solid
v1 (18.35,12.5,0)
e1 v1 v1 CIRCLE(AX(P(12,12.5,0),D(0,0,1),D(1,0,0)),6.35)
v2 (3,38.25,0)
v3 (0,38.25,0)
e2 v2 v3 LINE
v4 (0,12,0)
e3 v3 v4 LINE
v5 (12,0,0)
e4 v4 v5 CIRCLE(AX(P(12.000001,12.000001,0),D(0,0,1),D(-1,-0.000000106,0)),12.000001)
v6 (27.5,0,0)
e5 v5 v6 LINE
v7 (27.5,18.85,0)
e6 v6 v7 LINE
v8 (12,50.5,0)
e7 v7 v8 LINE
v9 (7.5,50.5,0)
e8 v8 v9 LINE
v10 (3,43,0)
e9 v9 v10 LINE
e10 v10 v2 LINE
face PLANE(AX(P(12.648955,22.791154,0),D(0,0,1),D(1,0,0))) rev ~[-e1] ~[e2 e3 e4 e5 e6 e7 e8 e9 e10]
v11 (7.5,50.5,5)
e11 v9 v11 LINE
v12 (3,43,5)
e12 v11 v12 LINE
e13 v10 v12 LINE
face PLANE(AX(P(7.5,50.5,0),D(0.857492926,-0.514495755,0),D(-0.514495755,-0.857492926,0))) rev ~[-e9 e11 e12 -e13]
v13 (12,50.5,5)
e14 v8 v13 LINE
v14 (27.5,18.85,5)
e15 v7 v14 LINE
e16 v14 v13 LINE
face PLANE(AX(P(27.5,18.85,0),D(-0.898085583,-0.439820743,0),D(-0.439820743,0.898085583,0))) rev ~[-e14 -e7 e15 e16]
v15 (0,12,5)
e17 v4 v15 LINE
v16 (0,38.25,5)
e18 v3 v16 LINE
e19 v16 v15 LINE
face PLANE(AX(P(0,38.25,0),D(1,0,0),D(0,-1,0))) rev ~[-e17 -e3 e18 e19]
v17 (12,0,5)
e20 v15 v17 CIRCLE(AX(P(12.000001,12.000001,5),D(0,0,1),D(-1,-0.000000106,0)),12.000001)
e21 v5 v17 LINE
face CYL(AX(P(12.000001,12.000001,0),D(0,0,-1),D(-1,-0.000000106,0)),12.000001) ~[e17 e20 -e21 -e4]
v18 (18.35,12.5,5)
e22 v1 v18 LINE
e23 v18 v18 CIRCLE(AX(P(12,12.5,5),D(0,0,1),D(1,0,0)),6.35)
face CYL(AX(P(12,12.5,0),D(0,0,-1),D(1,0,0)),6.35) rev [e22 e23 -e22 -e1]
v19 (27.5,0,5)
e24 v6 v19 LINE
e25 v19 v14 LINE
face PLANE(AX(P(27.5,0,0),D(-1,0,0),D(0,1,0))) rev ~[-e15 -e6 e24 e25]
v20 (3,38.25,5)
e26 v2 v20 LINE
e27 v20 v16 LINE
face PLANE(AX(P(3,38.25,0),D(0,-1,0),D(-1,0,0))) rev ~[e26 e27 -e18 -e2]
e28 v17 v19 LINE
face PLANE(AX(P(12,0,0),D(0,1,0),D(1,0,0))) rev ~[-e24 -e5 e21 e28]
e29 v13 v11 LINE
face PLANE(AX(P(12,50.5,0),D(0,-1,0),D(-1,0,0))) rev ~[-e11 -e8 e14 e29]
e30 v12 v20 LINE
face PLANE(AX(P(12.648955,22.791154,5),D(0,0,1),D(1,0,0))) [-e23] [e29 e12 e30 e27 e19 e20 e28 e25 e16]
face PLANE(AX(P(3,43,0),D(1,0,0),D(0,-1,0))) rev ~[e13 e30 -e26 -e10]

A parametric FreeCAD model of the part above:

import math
import FreeCAD as App
import Part
import Sketcher

V = App.Vector

doc = App.newDocument("Part")
body = doc.addObject("PartDesign::Body", "Body")

# Sketch on XY plane
sketch1 = body.newObject("Sketcher::SketchObject", "Sketch")
sketch1.AttachmentSupport = (doc.getObject("XY_Plane"), [""])
sketch1.MapMode = "FlatFace"
sketch1.addGeometry(Part.ArcOfCircle(Part.Circle(V(12.000001, 12.000001, 0), V(0, 0, 1), 12.000001), math.radians(-179.999994), math.radians(-90.000006)), False)
sketch1.addGeometry(Part.LineSegment(V(12, 0, 0), V(27.5, 0, 0)), False)
sketch1.addGeometry(Part.LineSegment(V(27.5, 0, 0), V(27.5, 18.85, 0)), False)
sketch1.addGeometry(Part.LineSegment(V(27.5, 18.85, 0), V(12, 50.5, 0)), False)
sketch1.addGeometry(Part.LineSegment(V(12, 50.5, 0), V(7.5, 50.5, 0)), False)
sketch1.addGeometry(Part.LineSegment(V(7.5, 50.5, 0), V(3, 43, 0)), False)
sketch1.addGeometry(Part.LineSegment(V(3, 43, 0), V(3, 38.25, 0)), False)
sketch1.addGeometry(Part.LineSegment(V(3, 38.25, 0), V(0, 38.25, 0)), False)
sketch1.addGeometry(Part.LineSegment(V(0, 38.25, 0), V(0, 12, 0)), False)
sketch1.addGeometry(Part.Circle(V(12, 12.5, 0), V(0, 0, 1), 6.35), False)
sketch1.addConstraint(Sketcher.Constraint("Tangent", 0, 2, 1, 1))
sketch1.addConstraint(Sketcher.Constraint("Coincident", 1, 2, 2, 1))
sketch1.addConstraint(Sketcher.Constraint("Coincident", 2, 2, 3, 1))
sketch1.addConstraint(Sketcher.Constraint("Coincident", 3, 2, 4, 1))
sketch1.addConstraint(Sketcher.Constraint("Coincident", 4, 2, 5, 1))
sketch1.addConstraint(Sketcher.Constraint("Coincident", 5, 2, 6, 1))
sketch1.addConstraint(Sketcher.Constraint("Coincident", 6, 2, 7, 1))
sketch1.addConstraint(Sketcher.Constraint("Coincident", 7, 2, 8, 1))
sketch1.addConstraint(Sketcher.Constraint("Tangent", 8, 2, 0, 1))
sketch1.addConstraint(Sketcher.Constraint("Horizontal", 1))
sketch1.addConstraint(Sketcher.Constraint("Vertical", 2))
sketch1.addConstraint(Sketcher.Constraint("Horizontal", 4))
sketch1.addConstraint(Sketcher.Constraint("Vertical", 6))
sketch1.addConstraint(Sketcher.Constraint("Horizontal", 7))
sketch1.addConstraint(Sketcher.Constraint("Vertical", 8))
sketch1.addConstraint(Sketcher.Constraint("PointOnObject", 0, 2, -1))
sketch1.addConstraint(Sketcher.Constraint("PointOnObject", 7, 2, -2))
sketch1.addConstraint(Sketcher.Constraint("Vertical", 0, 3, 9, 3))
sketch1.addConstraint(Sketcher.Constraint("Vertical", 0, 2, 3, 2))
sketch1.addConstraint(Sketcher.Constraint("Radius", 0, 12.000001))
sketch1.addConstraint(Sketcher.Constraint("Diameter", 9, 12.7))
sketch1.addConstraint(Sketcher.Constraint("DistanceX", 7, 2, 7, 1, 3.0))
sketch1.addConstraint(Sketcher.Constraint("DistanceX", 1, 1, 1, 2, 15.5))
sketch1.addConstraint(Sketcher.Constraint("DistanceX", 4, 2, 4, 1, 4.5))
sketch1.addConstraint(Sketcher.Constraint("DistanceY", -1, 1, 5, 2, 43.0))
sketch1.addConstraint(Sketcher.Constraint("DistanceY", 9, 3, 3, 2, 38.0))
sketch1.addConstraint(Sketcher.Constraint("DistanceY", 2, 1, 2, 2, 18.85))
sketch1.addConstraint(Sketcher.Constraint("DistanceY", 6, 2, 6, 1, 4.75))
sketch1.addConstraint(Sketcher.Constraint("DistanceY", -1, 1, 9, 3, 12.5))
pad1 = body.newObject("PartDesign::Pad", "Pad")
pad1.Profile = sketch1
pad1.Length = 5

doc.recompute()
